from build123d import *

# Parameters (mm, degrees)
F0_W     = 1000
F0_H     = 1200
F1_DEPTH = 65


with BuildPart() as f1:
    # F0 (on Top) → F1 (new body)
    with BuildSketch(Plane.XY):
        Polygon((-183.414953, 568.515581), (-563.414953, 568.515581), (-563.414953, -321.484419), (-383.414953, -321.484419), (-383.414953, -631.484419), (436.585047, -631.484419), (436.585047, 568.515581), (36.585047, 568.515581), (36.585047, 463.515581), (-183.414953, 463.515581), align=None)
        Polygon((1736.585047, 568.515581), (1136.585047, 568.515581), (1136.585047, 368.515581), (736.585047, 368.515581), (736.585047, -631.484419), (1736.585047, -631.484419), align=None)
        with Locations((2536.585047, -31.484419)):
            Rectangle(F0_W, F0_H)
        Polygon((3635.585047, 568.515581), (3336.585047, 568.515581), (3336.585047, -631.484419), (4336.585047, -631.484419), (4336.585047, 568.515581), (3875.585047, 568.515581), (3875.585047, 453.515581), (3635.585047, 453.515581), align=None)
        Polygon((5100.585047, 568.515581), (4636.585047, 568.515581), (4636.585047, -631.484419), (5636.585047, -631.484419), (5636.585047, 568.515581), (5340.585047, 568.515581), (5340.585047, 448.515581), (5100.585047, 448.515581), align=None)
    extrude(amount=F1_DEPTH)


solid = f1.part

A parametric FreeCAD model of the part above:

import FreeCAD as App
import Part
import Sketcher
Q = App.Units.Quantity


def add_polygon(sketch, points):
    """Adds a closed chain of lines whose ends are joined by coincident constraints."""
    first, n = sketch.GeometryCount, len(points)
    for a, b in zip(points, points[1:] + points[:1]):
        sketch.addGeometry(Part.LineSegment(App.Vector(*a, 0), App.Vector(*b, 0)), False)
    for i in range(n):
        sketch.addConstraint(Sketcher.Constraint("Coincident", first + i, 2, first + (i + 1) % n, 1))

doc = App.newDocument("Part")
body = doc.addObject("PartDesign::Body", "Body")
body.AllowCompound = True

# Sketch on XY plane
sketch1 = body.newObject("Sketcher::SketchObject", "Sketch")
sketch1.AttachmentSupport = (doc.getObject("XY_Plane"), [""])
sketch1.MapMode = "FlatFace"
add_polygon(sketch1, [(-183.414953, 568.515581), (-563.414953, 568.515581), (-563.414953, -321.484419), (-383.414953, -321.484419), (-383.414953, -631.484419), (436.585047, -631.484419), (436.585047, 568.515581), (36.585047, 568.515581), (36.585047, 463.515581), (-183.414953, 463.515581)])  # lines 0-9
add_polygon(sketch1, [(1736.585047, 568.515581), (1136.585047, 568.515581), (1136.585047, 368.515581), (736.585047, 368.515581), (736.585047, -631.484419), (1736.585047, -631.484419)])  # lines 10-15
add_polygon(sketch1, [(2036.585047, 568.515581), (2036.585047, -631.484419), (3036.585047, -631.484419), (3036.585047, 568.515581)])  # lines 16-19
add_polygon(sketch1, [(3635.585047, 568.515581), (3336.585047, 568.515581), (3336.585047, -631.484419), (4336.585047, -631.484419), (4336.585047, 568.515581), (3875.585047, 568.515581), (3875.585047, 453.515581), (3635.585047, 453.515581)])  # lines 20-27
add_polygon(sketch1, [(5100.585047, 568.515581), (4636.585047, 568.515581), (4636.585047, -631.484419), (5636.585047, -631.484419), (5636.585047, 568.515581), (5340.585047, 568.515581), (5340.585047, 448.515581), (5100.585047, 448.515581)])  # lines 28-35
sketch1.addConstraint([
    Sketcher.Constraint("Horizontal", 0),
    Sketcher.Constraint("Vertical", 1),
    Sketcher.Constraint("Horizontal", 2),
    Sketcher.Constraint("Vertical", 3),
    Sketcher.Constraint("Horizontal", 4),
    Sketcher.Constraint("Vertical", 5),
    Sketcher.Constraint("Horizontal", 6),
    Sketcher.Constraint("Vertical", 7),
    Sketcher.Constraint("Horizontal", 8),
    Sketcher.Constraint("Vertical", 9),
    Sketcher.Constraint("Horizontal", 10),
    Sketcher.Constraint("Vertical", 11),
    Sketcher.Constraint("Horizontal", 12),
    Sketcher.Constraint("Vertical", 13),
    Sketcher.Constraint("Horizontal", 14),
    Sketcher.Constraint("Vertical", 15),
    Sketcher.Constraint("Vertical", 16),
    Sketcher.Constraint("Horizontal", 17),
    Sketcher.Constraint("Vertical", 18),
    Sketcher.Constraint("Horizontal", 19),
    Sketcher.Constraint("Horizontal", 20),
    Sketcher.Constraint("Vertical", 21),
    Sketcher.Constraint("Horizontal", 22),
    Sketcher.Constraint("Vertical", 23),
    Sketcher.Constraint("Horizontal", 24),
    Sketcher.Constraint("Vertical", 25),
    Sketcher.Constraint("Horizontal", 26),
    Sketcher.Constraint("Vertical", 27),
    Sketcher.Constraint("Horizontal", 28),
    Sketcher.Constraint("Vertical", 29),
    Sketcher.Constraint("Horizontal", 30),
    Sketcher.Constraint("Vertical", 31),
    Sketcher.Constraint("Horizontal", 32),
    Sketcher.Constraint("Vertical", 33),
    Sketcher.Constraint("Horizontal", 34),
    Sketcher.Constraint("Vertical", 35),
    Sketcher.Constraint("Horizontal", 0, 2, 5, 2),
    Sketcher.Constraint("Horizontal", 9, 2, 10, 2),
    Sketcher.Constraint("Horizontal", 4, 2, 13, 2),
    Sketcher.Constraint("Horizontal", 14, 2, 16, 2),
    Sketcher.Constraint("Horizontal", 15, 2, 18, 2),
    Sketcher.Constraint("Horizontal", 19, 2, 20, 2),
    Sketcher.Constraint("Horizontal", 17, 2, 21, 2),
    Sketcher.Constraint("Horizontal", 20, 2, 23, 2),
    Sketcher.Constraint("Horizontal", 27, 2, 28, 2),
    Sketcher.Constraint("Horizontal", 22, 2, 29, 2),
    Sketcher.Constraint("Horizontal", 28, 2, 31, 2),
    Sketcher.Constraint("Equal", 6, 12),
    Sketcher.Constraint("Equal", 14, 17),
    Sketcher.Constraint("Equal", 19, 22),
    Sketcher.Constraint("Equal", 22, 30),
    Sketcher.Constraint("Equal", 26, 34),
    Sketcher.Constraint("Equal", 30, 13),
    Sketcher.Constraint("DistanceX", 0, 2, 0, 1, Q("380 mm")),
    Sketcher.Constraint("DistanceX", 2, 1, 2, 2, Q("180 mm")),
    Sketcher.Constraint("DistanceX", 4, 1, 4, 2, Q("820 mm")),
    Sketcher.Constraint("DistanceX", 6, 2, 6, 1, Q("400 mm")),
    Sketcher.Constraint("DistanceX", 10, 2, 10, 1, Q("600 mm")),
    Sketcher.Constraint("DistanceX", 20, 2, 20, 1, Q("299 mm")),
    Sketcher.Constraint("DistanceX", 24, 2, 24, 1, Q("461 mm")),
    Sketcher.Constraint("DistanceX", 28, 2, 28, 1, Q("464 mm")),
    Sketcher.Constraint("DistanceY", 1, 2, 1, 1, Q("890 mm")),
    Sketcher.Constraint("DistanceY", 3, 2, 3, 1, Q("310 mm")),
    Sketcher.Constraint("DistanceY", 7, 2, 7, 1, Q("105 mm")),
    Sketcher.Constraint("DistanceY", 25, 2, 25, 1, Q("115 mm")),
    Sketcher.Constraint("DistanceY", 33, 2, 33, 1, Q("120 mm")),
    Sketcher.Constraint("DistanceX", 5, 2, 10, 2, Q("700 mm")),
    Sketcher.Constraint("DistanceX", 14, 2, 16, 2, Q("300 mm")),
    Sketcher.Constraint("DistanceX", 18, 2, 20, 2, Q("300 mm")),
    Sketcher.Constraint("DistanceX", 23, 2, 28, 2, Q("300 mm")),
    Sketcher.Constraint("DistanceY", -1, 1, 0, 2, Q("568.515581 mm")),
    Sketcher.Constraint("DistanceX", 0, 2, -1, 1, Q("563.414953 mm")),
])
pad1 = body.newObject("PartDesign::Pad", "Pad")
pad1.Profile = sketch1
pad1.Length = 65

doc.recompute()
